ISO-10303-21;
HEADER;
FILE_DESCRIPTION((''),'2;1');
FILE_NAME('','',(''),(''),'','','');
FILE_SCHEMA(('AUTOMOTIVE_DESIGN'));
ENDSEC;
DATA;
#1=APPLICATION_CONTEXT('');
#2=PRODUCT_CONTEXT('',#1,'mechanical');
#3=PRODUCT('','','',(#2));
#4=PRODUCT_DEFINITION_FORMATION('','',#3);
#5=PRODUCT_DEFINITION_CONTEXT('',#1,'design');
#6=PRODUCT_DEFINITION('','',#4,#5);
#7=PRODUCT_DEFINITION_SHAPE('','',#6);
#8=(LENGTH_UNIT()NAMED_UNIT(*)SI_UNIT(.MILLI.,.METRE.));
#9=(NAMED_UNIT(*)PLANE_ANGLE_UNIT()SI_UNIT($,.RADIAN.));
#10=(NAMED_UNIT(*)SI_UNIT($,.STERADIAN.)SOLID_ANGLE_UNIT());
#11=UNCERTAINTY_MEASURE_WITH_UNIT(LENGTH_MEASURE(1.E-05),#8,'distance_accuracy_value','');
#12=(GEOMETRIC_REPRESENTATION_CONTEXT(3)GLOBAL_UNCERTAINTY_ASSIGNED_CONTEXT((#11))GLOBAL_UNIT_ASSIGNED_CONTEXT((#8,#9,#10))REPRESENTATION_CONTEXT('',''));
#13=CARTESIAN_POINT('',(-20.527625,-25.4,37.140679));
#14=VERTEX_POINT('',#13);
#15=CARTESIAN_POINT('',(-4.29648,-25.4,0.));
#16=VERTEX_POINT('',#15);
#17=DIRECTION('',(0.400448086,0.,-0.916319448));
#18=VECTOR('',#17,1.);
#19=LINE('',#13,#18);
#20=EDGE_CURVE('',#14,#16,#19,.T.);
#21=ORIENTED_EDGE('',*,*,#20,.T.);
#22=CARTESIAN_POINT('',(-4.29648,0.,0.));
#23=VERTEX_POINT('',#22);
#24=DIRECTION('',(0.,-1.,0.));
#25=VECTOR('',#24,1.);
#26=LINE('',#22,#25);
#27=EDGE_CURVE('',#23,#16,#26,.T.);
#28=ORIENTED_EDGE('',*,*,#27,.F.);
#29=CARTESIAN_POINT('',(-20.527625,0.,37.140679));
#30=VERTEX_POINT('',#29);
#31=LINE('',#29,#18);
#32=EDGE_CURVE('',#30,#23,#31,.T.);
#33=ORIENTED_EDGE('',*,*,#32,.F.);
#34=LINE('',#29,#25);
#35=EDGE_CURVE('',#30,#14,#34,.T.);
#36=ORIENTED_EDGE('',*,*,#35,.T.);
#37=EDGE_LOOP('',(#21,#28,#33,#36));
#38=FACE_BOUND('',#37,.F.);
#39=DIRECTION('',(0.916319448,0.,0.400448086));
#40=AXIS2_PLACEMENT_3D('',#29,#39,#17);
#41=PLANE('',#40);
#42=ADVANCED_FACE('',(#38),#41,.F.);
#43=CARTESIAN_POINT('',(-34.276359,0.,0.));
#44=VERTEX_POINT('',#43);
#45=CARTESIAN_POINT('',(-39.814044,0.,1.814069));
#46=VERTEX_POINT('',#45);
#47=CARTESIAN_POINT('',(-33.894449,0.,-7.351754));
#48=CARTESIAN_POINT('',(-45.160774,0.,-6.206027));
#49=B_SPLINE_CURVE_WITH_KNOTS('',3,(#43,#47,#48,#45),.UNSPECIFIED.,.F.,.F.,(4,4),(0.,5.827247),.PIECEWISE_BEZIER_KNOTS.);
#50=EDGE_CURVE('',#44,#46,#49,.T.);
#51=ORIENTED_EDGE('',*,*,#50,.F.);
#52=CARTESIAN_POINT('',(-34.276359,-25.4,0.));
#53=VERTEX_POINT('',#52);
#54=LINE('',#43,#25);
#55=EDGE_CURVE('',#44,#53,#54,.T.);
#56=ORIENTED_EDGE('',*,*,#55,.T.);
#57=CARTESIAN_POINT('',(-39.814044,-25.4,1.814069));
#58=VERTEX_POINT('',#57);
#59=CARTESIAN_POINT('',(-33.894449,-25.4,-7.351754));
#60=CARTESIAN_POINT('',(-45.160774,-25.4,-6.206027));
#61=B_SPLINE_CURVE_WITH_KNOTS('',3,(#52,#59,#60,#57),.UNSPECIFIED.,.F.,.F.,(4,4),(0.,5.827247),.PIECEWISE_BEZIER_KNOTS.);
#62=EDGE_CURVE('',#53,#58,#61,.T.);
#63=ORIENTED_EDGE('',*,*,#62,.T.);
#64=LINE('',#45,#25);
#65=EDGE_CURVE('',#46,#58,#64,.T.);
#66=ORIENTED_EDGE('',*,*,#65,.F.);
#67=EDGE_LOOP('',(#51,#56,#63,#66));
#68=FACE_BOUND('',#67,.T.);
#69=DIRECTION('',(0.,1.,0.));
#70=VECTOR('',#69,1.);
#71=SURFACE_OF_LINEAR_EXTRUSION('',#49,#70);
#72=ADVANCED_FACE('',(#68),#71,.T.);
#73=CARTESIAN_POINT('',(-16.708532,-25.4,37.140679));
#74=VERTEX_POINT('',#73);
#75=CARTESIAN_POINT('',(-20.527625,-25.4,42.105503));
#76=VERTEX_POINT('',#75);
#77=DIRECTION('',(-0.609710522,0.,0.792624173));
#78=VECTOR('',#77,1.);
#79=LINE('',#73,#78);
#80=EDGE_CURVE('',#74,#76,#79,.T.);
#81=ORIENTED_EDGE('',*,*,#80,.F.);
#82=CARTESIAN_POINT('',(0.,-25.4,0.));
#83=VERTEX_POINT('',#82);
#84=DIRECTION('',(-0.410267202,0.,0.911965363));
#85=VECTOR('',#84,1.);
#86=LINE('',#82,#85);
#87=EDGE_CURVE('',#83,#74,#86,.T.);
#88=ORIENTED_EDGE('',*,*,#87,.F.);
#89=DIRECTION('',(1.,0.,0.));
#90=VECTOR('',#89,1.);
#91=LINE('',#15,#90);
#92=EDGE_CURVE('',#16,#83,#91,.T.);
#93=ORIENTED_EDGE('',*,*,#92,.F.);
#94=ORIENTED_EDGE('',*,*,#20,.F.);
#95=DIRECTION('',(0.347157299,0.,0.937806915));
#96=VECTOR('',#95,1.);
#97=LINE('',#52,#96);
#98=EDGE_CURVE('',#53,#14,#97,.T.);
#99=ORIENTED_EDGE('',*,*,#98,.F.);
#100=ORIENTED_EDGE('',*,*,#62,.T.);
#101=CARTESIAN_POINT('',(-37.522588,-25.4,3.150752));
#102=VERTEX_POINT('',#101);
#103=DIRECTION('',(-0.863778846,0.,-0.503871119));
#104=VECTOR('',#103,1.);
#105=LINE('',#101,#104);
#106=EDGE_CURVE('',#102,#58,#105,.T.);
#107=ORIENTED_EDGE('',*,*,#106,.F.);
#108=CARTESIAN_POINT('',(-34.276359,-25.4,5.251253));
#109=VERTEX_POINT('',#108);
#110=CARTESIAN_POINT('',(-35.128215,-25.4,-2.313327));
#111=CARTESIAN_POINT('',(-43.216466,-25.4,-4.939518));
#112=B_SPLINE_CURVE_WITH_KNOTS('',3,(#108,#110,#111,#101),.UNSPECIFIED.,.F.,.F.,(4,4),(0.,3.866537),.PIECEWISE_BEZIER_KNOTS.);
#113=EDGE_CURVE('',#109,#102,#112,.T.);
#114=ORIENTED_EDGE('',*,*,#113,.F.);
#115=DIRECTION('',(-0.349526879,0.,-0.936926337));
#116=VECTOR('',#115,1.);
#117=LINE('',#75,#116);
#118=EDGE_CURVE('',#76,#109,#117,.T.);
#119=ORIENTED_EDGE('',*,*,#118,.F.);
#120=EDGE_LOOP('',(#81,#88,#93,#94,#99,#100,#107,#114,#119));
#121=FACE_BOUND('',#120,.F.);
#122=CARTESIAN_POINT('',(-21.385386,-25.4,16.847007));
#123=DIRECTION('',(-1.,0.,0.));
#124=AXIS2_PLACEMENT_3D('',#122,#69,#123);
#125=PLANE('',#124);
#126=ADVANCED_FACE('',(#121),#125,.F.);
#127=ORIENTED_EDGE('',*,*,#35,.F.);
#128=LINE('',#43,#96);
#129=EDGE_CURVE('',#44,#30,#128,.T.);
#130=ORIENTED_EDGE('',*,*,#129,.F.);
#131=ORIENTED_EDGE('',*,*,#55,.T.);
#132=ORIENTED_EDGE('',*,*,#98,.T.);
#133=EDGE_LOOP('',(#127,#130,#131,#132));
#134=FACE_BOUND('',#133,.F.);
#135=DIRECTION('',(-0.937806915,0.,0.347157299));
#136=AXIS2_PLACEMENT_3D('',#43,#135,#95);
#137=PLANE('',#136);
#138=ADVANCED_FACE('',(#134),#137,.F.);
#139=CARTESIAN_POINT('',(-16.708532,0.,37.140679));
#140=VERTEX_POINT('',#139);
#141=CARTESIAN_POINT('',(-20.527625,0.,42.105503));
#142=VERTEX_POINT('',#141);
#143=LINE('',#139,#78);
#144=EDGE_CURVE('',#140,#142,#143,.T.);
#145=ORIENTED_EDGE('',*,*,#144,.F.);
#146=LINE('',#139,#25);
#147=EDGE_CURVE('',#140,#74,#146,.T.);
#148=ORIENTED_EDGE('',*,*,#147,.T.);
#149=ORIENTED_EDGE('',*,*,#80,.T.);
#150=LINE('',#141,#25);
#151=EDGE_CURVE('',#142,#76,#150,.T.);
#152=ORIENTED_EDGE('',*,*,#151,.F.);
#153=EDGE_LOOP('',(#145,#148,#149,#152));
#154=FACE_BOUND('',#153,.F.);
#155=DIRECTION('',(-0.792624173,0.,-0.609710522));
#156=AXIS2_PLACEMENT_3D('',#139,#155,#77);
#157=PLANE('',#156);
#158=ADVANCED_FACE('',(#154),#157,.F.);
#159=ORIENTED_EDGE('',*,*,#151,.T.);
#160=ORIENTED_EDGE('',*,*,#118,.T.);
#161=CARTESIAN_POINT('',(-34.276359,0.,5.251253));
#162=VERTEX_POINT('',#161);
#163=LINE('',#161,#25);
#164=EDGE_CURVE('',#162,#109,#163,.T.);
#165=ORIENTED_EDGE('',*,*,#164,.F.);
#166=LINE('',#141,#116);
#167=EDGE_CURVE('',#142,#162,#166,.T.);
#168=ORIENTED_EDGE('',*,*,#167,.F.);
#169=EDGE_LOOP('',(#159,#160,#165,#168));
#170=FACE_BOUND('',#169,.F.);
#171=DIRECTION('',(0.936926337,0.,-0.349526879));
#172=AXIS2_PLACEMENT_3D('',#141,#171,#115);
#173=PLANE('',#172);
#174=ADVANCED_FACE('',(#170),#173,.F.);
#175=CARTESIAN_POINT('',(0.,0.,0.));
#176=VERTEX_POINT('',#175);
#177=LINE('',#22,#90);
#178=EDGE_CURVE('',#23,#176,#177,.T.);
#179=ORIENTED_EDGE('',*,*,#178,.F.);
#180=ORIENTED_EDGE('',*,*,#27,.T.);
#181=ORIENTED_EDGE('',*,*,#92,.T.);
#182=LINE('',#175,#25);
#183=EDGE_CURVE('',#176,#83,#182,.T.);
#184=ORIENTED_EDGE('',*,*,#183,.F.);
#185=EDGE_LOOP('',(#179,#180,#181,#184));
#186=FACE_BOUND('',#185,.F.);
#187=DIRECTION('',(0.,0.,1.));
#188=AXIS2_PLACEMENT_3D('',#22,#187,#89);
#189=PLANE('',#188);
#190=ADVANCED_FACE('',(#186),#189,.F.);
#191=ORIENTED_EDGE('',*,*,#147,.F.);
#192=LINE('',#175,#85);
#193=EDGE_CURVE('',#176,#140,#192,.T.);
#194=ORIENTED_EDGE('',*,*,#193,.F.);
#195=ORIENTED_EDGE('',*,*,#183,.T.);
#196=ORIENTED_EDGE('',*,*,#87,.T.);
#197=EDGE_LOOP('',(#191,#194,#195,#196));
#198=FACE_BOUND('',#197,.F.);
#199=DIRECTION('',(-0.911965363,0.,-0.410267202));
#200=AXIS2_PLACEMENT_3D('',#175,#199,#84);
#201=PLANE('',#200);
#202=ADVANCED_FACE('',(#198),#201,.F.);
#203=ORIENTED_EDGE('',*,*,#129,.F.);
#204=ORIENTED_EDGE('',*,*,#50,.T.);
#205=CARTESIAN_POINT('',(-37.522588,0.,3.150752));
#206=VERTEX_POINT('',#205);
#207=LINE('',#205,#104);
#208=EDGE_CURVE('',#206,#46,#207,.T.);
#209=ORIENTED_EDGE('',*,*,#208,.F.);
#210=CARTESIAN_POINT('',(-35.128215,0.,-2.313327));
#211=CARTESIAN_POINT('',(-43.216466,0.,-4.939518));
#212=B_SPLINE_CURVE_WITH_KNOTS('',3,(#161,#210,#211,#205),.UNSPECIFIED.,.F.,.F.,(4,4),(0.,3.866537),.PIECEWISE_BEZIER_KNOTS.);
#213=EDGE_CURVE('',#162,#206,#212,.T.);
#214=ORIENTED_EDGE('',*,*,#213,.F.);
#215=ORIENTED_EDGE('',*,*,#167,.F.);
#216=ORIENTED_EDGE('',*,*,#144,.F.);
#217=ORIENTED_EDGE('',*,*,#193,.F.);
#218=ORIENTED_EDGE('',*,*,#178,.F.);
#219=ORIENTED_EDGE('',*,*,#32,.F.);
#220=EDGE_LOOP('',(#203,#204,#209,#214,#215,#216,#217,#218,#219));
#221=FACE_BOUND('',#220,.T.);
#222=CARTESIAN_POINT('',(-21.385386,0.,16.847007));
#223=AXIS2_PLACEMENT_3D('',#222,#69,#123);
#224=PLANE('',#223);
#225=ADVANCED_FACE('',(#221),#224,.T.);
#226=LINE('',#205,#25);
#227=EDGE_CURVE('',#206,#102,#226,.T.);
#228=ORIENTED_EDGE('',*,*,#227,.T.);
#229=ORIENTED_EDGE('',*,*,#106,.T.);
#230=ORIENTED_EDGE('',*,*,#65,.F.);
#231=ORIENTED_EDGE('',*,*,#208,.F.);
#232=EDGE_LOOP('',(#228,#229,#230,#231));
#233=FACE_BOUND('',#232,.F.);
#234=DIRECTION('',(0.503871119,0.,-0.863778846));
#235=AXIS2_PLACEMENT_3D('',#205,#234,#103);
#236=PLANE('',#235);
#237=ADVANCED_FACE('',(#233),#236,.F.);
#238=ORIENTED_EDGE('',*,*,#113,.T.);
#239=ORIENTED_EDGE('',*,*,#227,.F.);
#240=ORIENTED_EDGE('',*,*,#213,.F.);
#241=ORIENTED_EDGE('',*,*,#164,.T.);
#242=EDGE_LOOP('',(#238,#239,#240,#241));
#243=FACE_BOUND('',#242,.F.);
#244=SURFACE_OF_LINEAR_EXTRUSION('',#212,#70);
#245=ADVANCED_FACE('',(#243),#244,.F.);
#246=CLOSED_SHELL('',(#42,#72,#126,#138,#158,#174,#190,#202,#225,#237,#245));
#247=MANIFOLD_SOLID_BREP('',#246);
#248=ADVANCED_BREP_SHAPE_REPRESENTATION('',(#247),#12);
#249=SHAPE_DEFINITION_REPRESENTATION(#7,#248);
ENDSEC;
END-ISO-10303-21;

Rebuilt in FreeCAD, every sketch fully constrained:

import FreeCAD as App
import Part
import Sketcher
Q = App.Units.Quantity

doc = App.newDocument("Part")
body = doc.addObject("PartDesign::Body", "Body")

sketch1 = body.newObject("Sketcher::SketchObject", "Sketch")
sketch1.AttachmentSupport = (doc.getObject("XZ_Plane"), [""])
sketch1.MapMode = "FlatFace"
sketch1.addGeometry([
    Part.BSplineCurve([App.Vector(-34.276359, 0, 0), App.Vector(-33.894449, -7.351754, 0), App.Vector(-45.160774, -6.206027, 0), App.Vector(-39.814044, 1.814069, 0)], [4, 4], [0, 5.827247], False, 3, [1, 1, 1, 1], False),
    Part.LineSegment(App.Vector(-34.276359, 0, 0), App.Vector(-20.527625, 37.140679, 0)),
    Part.LineSegment(App.Vector(-20.527625, 37.140679, 0), App.Vector(-4.29648, 0, 0)),
    Part.LineSegment(App.Vector(-4.29648, 0, 0), App.Vector(0, 0, 0)),
    Part.LineSegment(App.Vector(0, 0, 0), App.Vector(-16.708532, 37.140679, 0)),
    Part.LineSegment(App.Vector(-16.708532, 37.140679, 0), App.Vector(-20.527625, 42.105503, 0)),
    Part.LineSegment(App.Vector(-20.527625, 42.105503, 0), App.Vector(-34.276359, 5.251253, 0)),
    Part.BSplineCurve([App.Vector(-34.276359, 5.251253, 0), App.Vector(-35.128215, -2.313327, 0), App.Vector(-43.216466, -4.939518, 0), App.Vector(-37.522588, 3.150752, 0)], [4, 4], [0, 3.866537], False, 3, [1, 1, 1, 1], False),
    Part.LineSegment(App.Vector(-37.522588, 3.150752, 0), App.Vector(-39.814044, 1.814069, 0)),
], False)
sketch1.addConstraint([
    Sketcher.Constraint("Block", 0),
    Sketcher.Constraint("Block", 7),
    Sketcher.Constraint("Coincident", 0, 1, 1, 1),
    Sketcher.Constraint("Coincident", 1, 2, 2, 1),
    Sketcher.Constraint("Coincident", 2, 2, 3, 1),
    Sketcher.Constraint("Coincident", 3, 2, 4, 1),
    Sketcher.Constraint("Coincident", 4, 2, 5, 1),
    Sketcher.Constraint("Coincident", 5, 2, 6, 1),
    Sketcher.Constraint("Coincident", 6, 2, 7, 1),
    Sketcher.Constraint("Coincident", 7, 2, 8, 1),
    Sketcher.Constraint("Coincident", 8, 2, 0, 2),
    Sketcher.Constraint("Horizontal", 3),
    Sketcher.Constraint("Coincident", 3, 2, -1, 1),
    Sketcher.Constraint("DistanceX", 3, 1, 3, 2, 4.29648),
    Sketcher.Constraint("Distance", 1, 39.603759),
    Sketcher.Constraint("Distance", 5, 6.263781),
    Sketcher.Constraint("Distance", 6, 39.33527),
    Sketcher.Constraint("DistanceY", -1, 1, 1, 2, 37.140679),
    Sketcher.Constraint("DistanceY", -1, 1, 4, 2, 37.140679),
    Sketcher.Constraint("DistanceY", 6, 2, 5, 2, 36.85425),
])
pad1 = body.newObject("PartDesign::Pad", "Pad")
pad1.Profile = sketch1
pad1.Length = Q("1 in")

doc.recompute()
